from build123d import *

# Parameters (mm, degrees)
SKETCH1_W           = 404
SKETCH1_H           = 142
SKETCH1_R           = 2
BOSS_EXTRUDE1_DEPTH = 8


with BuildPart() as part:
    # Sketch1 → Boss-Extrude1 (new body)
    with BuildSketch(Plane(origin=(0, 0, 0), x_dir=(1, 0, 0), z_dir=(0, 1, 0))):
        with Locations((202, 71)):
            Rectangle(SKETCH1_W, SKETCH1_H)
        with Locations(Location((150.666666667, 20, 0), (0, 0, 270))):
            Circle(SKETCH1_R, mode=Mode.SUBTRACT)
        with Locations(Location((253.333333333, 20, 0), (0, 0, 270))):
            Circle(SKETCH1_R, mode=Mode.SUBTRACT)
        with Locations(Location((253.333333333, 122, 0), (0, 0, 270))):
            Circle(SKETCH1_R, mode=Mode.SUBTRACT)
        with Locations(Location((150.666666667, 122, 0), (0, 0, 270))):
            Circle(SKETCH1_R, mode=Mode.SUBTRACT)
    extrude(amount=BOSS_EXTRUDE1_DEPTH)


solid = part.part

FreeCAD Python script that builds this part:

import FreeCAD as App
import Part
import Sketcher


def add_polygon(sketch, points):
    """Adds a closed chain of lines whose ends are joined by coincident constraints."""
    first, n = sketch.GeometryCount, len(points)
    for a, b in zip(points, points[1:] + points[:1]):
        sketch.addGeometry(Part.LineSegment(App.Vector(*a, 0), App.Vector(*b, 0)), False)
    for i in range(n):
        sketch.addConstraint(Sketcher.Constraint("Coincident", first + i, 2, first + (i + 1) % n, 1))

doc = App.newDocument("Part")
body = doc.addObject("PartDesign::Body", "Body")

sketch1 = body.newObject("Sketcher::SketchObject", "Sketch")
sketch1.AttachmentSupport = (doc.getObject("XZ_Plane"), [""])
sketch1.MapMode = "FlatFace"
add_polygon(sketch1, [(0, -142), (0, 0), (404, 0), (404, -142)])
sketch1.addGeometry(Part.Circle(App.Vector(150.7, -20, 0), App.Vector(0, 0, 1), 2), False)
sketch1.addGeometry(Part.Circle(App.Vector(253.3, -20, 0), App.Vector(0, 0, 1), 2), False)
sketch1.addGeometry(Part.Circle(App.Vector(150.7, -122, 0), App.Vector(0, 0, 1), 2), False)
sketch1.addGeometry(Part.Circle(App.Vector(253.3, -122, 0), App.Vector(0, 0, 1), 2), False)
sketch1.addConstraint([
    Sketcher.Constraint("Vertical", 0),
    Sketcher.Constraint("Horizontal", 1),
    Sketcher.Constraint("Vertical", 2),
    Sketcher.Constraint("Horizontal", 3),
    Sketcher.Constraint("Coincident", 0, 2, -1, 1),
    Sketcher.Constraint("Equal", 4, 5),
    Sketcher.Constraint("Equal", 5, 6),
    Sketcher.Constraint("Equal", 6, 7),
    Sketcher.Constraint("Horizontal", 4, 3, 5, 3),
    Sketcher.Constraint("Horizontal", 6, 3, 7, 3),
    Sketcher.Constraint("Vertical", 4, 3, 6, 3),
    Sketcher.Constraint("Vertical", 5, 3, 7, 3),
    Sketcher.Constraint("Diameter", 4, 4.0),
    Sketcher.Constraint("DistanceX", 1, 1, 1, 2, 404.0),
    Sketcher.Constraint("DistanceY", 0, 1, 0, 2, 142.0),
    Sketcher.Constraint("DistanceY", 4, 3, -1, 1, 20.0),
    Sketcher.Constraint("DistanceY", 6, 3, -1, 1, 122.0),
    Sketcher.Constraint("DistanceX", -1, 1, 4, 3, 150.666667),
    Sketcher.Constraint("DistanceX", -1, 1, 5, 3, 253.333333),
])
pad1 = body.newObject("PartDesign::Pad", "Pad")
pad1.Profile = sketch1
pad1.Length = 8
pad1.Reversed = True

doc.recompute()
